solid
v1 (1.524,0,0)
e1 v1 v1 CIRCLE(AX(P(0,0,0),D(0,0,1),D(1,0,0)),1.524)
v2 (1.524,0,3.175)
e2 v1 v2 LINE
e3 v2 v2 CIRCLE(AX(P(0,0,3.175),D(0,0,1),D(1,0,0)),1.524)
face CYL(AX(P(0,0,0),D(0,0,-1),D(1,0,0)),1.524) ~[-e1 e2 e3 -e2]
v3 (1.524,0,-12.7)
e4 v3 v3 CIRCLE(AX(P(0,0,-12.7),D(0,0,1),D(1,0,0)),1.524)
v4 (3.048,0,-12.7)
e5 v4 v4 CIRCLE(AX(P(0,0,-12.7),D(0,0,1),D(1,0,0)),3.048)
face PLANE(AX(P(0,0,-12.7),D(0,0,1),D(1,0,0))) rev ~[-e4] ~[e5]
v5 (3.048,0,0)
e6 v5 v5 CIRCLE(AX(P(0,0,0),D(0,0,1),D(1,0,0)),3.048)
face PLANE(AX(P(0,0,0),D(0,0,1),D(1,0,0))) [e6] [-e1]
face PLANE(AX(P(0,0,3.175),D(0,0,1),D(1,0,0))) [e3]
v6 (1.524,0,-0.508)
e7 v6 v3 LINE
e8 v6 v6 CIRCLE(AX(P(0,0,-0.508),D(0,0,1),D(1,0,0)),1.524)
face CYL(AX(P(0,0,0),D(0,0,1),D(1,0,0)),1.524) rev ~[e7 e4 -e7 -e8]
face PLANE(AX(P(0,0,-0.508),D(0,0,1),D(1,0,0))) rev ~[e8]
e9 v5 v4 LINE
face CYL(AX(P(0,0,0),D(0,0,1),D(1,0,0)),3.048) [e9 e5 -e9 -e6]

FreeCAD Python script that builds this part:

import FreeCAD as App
import Part
import Sketcher
Q = App.Units.Quantity

doc = App.newDocument("Part")
body = doc.addObject("PartDesign::Body", "Body")

sketch1 = body.newObject("Sketcher::SketchObject", "Sketch")
sketch1.AttachmentSupport = (doc.getObject("XY_Plane"), [""])
sketch1.MapMode = "FlatFace"
sketch1.addGeometry([
    Part.Circle(App.Vector(0, 0, 0), App.Vector(0, 0, 1), 3.048),
    Part.Circle(App.Vector(0, 0, 0), App.Vector(0, 0, 1), 1.524),
], False)
sketch1.addConstraint([
    Sketcher.Constraint("Coincident", 0, 3, -1, 1),
    Sketcher.Constraint("Coincident", 1, 3, -1, 1),
    Sketcher.Constraint("Diameter", 0, Q("0.24 in")),
    Sketcher.Constraint("Diameter", 1, Q("0.12 in")),
])
pad1 = body.newObject("PartDesign::Pad", "Pad")
pad1.Profile = sketch1
pad1.Length = Q("0.5 in")
pad1.Reversed = True

sketch2 = body.newObject("Sketcher::SketchObject", "Sketch001")
sketch2.AttachmentSupport = (doc.getObject("XY_Plane"), [""])
sketch2.MapMode = "FlatFace"
sketch2.addGeometry(Part.Circle(App.Vector(0, 0, 0), App.Vector(0, 0, 1), 1.524), False)
sketch2.addConstraint([
    Sketcher.Constraint("Coincident", 0, 3, -1, 1),
    Sketcher.Constraint("Diameter", 0, Q("0.12 in")),
])
pad2 = body.newObject("PartDesign::Pad", "Pad001")
pad2.Profile = sketch2
pad2.Length = Q("0.02 in")
pad2.Reversed = True

sketch3 = body.newObject("Sketcher::SketchObject", "Sketch002")
sketch3.AttachmentSupport = (doc.getObject("XY_Plane"), [""])
sketch3.MapMode = "FlatFace"
sketch3.addGeometry(Part.Circle(App.Vector(0, 0, 0), App.Vector(0, 0, 1), 1.524), False)
sketch3.addConstraint([
    Sketcher.Constraint("Coincident", 0, 3, -1, 1),
    Sketcher.Constraint("Diameter", 0, Q("0.12 in")),
])
pad3 = body.newObject("PartDesign::Pad", "Pad002")
pad3.Profile = sketch3
pad3.Length = Q("0.125 in")

doc.recompute()
